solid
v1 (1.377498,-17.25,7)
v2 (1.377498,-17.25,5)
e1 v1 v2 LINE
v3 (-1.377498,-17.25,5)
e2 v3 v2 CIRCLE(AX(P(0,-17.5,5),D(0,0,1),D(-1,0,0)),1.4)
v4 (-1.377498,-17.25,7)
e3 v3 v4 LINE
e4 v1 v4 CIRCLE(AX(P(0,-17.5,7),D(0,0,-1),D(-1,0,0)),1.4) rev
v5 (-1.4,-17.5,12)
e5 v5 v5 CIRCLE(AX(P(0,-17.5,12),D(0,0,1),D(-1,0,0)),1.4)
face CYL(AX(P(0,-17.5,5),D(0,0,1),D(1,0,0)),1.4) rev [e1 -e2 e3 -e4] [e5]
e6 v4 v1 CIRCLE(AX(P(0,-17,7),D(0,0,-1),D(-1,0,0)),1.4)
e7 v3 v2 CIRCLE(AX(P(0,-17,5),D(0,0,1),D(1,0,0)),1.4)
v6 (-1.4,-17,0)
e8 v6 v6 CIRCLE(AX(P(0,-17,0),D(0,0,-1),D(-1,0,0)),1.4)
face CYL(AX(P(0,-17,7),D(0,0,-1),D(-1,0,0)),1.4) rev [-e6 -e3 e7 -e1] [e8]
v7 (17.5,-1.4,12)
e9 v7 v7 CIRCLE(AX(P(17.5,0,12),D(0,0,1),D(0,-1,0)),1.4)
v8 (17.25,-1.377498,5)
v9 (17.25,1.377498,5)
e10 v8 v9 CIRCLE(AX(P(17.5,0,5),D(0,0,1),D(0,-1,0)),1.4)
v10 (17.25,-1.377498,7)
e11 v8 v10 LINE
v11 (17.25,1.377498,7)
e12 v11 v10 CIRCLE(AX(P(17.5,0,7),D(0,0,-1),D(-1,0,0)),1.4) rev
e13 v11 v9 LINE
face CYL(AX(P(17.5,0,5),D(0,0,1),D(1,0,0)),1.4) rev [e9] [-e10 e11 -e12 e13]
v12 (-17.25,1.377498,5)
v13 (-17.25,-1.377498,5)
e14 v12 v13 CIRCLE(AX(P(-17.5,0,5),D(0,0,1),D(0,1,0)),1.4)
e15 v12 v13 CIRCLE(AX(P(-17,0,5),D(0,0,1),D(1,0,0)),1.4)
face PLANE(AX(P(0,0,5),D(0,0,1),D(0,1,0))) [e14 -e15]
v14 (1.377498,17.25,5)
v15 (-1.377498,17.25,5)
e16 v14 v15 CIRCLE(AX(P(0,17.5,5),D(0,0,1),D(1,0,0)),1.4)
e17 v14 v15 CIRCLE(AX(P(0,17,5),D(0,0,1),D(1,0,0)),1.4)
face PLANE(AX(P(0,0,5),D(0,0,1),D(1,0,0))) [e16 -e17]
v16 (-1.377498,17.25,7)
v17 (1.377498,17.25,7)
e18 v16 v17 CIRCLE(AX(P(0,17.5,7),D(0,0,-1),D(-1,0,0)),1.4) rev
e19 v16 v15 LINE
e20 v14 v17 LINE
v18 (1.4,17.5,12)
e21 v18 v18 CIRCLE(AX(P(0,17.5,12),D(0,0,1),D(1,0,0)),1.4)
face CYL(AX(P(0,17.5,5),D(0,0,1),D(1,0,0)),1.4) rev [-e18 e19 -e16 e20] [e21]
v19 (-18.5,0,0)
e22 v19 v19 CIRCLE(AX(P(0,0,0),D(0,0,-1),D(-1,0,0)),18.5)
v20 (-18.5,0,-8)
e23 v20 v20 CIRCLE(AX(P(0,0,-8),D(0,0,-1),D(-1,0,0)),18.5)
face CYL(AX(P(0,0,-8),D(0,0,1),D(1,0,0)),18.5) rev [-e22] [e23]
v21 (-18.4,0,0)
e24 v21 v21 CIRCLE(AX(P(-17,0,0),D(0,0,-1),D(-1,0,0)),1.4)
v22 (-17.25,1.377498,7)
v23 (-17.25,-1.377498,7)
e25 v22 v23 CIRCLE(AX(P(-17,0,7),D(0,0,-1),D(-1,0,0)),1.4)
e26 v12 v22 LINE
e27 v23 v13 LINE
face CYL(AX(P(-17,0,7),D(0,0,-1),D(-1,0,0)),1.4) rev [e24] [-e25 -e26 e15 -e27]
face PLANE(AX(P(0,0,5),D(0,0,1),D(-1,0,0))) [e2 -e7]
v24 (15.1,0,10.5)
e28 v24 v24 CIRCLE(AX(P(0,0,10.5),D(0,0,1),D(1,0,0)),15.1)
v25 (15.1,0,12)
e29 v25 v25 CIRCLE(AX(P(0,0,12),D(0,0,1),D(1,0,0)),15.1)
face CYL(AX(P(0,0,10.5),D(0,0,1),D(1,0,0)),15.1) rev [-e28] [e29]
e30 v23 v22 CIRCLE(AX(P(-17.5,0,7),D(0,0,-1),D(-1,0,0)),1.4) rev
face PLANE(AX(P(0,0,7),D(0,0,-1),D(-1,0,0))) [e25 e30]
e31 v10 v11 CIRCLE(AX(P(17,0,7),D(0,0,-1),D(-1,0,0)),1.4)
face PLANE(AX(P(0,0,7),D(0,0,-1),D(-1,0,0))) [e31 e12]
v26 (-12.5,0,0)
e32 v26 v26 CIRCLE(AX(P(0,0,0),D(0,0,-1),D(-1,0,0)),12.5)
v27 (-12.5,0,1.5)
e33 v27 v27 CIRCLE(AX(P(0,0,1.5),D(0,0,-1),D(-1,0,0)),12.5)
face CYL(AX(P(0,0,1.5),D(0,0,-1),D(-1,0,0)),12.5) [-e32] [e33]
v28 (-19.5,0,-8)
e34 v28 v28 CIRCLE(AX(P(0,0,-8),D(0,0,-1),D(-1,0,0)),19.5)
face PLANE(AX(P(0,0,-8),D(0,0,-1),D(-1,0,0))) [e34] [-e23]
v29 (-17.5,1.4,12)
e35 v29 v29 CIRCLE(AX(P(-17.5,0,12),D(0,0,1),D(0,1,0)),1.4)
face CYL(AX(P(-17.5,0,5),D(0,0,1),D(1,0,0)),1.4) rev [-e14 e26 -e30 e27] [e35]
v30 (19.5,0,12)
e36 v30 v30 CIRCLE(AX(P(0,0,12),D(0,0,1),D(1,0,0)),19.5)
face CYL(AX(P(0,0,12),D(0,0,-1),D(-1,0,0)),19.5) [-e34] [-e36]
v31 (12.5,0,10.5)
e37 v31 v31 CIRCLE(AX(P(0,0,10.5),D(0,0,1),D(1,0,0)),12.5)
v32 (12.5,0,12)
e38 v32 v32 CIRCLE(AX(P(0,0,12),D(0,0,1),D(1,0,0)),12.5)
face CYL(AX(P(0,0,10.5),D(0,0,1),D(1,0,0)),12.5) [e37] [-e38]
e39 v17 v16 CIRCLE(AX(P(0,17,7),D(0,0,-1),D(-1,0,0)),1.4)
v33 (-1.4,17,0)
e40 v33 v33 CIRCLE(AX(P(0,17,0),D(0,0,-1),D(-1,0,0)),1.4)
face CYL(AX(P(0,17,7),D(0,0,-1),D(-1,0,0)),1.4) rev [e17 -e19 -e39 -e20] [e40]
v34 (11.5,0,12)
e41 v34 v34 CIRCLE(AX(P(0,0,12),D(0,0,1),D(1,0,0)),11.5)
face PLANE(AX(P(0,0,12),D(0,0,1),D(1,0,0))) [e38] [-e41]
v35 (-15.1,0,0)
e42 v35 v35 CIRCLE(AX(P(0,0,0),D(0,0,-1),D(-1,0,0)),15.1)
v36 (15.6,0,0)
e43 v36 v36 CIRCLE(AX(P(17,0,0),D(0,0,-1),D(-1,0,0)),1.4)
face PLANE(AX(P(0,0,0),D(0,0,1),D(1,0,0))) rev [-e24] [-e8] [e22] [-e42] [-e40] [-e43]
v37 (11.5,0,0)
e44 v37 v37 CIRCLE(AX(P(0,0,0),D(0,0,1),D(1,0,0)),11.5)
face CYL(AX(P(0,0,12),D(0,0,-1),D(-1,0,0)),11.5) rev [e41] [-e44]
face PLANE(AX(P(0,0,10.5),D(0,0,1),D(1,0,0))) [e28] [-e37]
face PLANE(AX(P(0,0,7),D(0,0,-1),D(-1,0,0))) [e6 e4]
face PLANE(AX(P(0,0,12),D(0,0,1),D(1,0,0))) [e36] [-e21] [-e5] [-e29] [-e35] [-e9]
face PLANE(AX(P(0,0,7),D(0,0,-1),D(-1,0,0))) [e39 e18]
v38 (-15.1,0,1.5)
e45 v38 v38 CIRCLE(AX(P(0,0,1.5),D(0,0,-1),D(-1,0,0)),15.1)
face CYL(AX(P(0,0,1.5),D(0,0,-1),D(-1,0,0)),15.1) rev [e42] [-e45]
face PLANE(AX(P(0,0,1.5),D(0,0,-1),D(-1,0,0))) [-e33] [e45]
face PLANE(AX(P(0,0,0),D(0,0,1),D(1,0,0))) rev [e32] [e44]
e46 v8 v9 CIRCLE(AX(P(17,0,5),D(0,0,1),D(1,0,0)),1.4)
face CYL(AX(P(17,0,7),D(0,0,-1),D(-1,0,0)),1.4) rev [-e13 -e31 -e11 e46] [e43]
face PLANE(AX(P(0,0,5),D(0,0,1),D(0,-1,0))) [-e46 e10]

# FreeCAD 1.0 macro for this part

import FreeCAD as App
import Part
import Sketcher

doc = App.newDocument("Part")
body = doc.addObject("PartDesign::Body", "Body")

sketch1 = body.newObject("Sketcher::SketchObject", "Sketch")
sketch1.AttachmentSupport = (doc.getObject("XY_Plane"), [""])
sketch1.MapMode = "FlatFace"
sketch1.addGeometry(Part.Circle(App.Vector(0, 0, 0), App.Vector(0, 0, 1), 20), False)
sketch1.addGeometry(Part.Circle(App.Vector(0, 0, 0), App.Vector(0, 0, 1), 12), False)
sketch1.addConstraint(Sketcher.Constraint("Coincident", 0, 3, -1, 1))
sketch1.addConstraint(Sketcher.Constraint("Coincident", 1, 3, -1, 1))
sketch1.addConstraint(Sketcher.Constraint("Diameter", 0, 39.0))
sketch1.addConstraint(Sketcher.Constraint("Diameter", 1, 23.0))
pad1 = body.newObject("PartDesign::Pad", "Pad")
pad1.Profile = sketch1
pad1.Length = 12

sketch2 = body.newObject("Sketcher::SketchObject", "Sketch001")
sketch2.AttachmentSupport = (doc.getObject("XY_Plane"), [""])
sketch2.MapMode = "FlatFace"
sketch2.AttachmentOffset = App.Placement(App.Vector(0, 0, 12), App.Rotation())
sketch2.addGeometry(Part.Circle(App.Vector(0, 17.5, 0), App.Vector(0, 0, 1), 1.4), False)
sketch2.addConstraint(Sketcher.Constraint("PointOnObject", 0, 3, -2))
sketch2.addConstraint(Sketcher.Constraint("Diameter", 0, 2.8))
sketch2.addConstraint(Sketcher.Constraint("DistanceY", -1, 1, 0, 3, 17.5))
pocket1 = body.newObject("PartDesign::Pocket", "Pocket")
pocket1.Profile = sketch2
pocket1.Length = 7
doc.recompute()

polarpattern = body.newObject("PartDesign::PolarPattern", "PolarPattern")
polarpattern.Originals = [pocket1]
polarpattern.Axis = (doc.getObject("Z_Axis"), [""])
polarpattern.Angle = 360
polarpattern.Occurrences = 4
body.Tip = polarpattern

sketch3 = body.newObject("Sketcher::SketchObject", "Sketch002")
sketch3.AttachmentSupport = (doc.getObject("XY_Plane"), [""])
sketch3.MapMode = "FlatFace"
sketch3.AttachmentOffset = App.Placement(App.Vector(0, 0, 12), App.Rotation())
sketch3.addGeometry(Part.Circle(App.Vector(0, 0, 0), App.Vector(0, 0, 1), 15), False)
sketch3.addGeometry(Part.Circle(App.Vector(0, 0, 0), App.Vector(0, 0, 1), 12), False)
sketch3.addConstraint(Sketcher.Constraint("Coincident", 0, 3, -1, 1))
sketch3.addConstraint(Sketcher.Constraint("Coincident", 1, 3, -1, 1))
sketch3.addConstraint(Sketcher.Constraint("Diameter", 1, 25.0))
sketch3.addConstraint(Sketcher.Constraint("Diameter", 0, 30.2))
pocket2 = body.newObject("PartDesign::Pocket", "Pocket001")
pocket2.Profile = sketch3
pocket2.Length = 1.5

sketch4 = body.newObject("Sketcher::SketchObject", "Sketch003")
sketch4.AttachmentSupport = (doc.getObject("XY_Plane"), [""])
sketch4.MapMode = "FlatFace"
sketch4.addGeometry(Part.Circle(App.Vector(0, -17, 0), App.Vector(0, 0, 1), 1.4), False)
sketch4.addGeometry(Part.Circle(App.Vector(17, 0, 0), App.Vector(0, 0, 1), 1.4), False)
sketch4.addGeometry(Part.Circle(App.Vector(0, 17, 0), App.Vector(0, 0, 1), 1.4), False)
sketch4.addGeometry(Part.Circle(App.Vector(-17, 0, 0), App.Vector(0, 0, 1), 1.4), False)
sketch4.addConstraint(Sketcher.Constraint("Equal", 0, 1))
sketch4.addConstraint(Sketcher.Constraint("Equal", 1, 2))
sketch4.addConstraint(Sketcher.Constraint("Equal", 2, 3))
sketch4.addConstraint(Sketcher.Constraint("Symmetric", 0, 3, 2, 3, -1, 1))
sketch4.addConstraint(Sketcher.Constraint("Symmetric", 1, 3, 3, 3, -1, 1))
sketch4.addConstraint(Sketcher.Constraint("PointOnObject", 0, 3, -2))
sketch4.addConstraint(Sketcher.Constraint("PointOnObject", 1, 3, -1))
sketch4.addConstraint(Sketcher.Constraint("Diameter", 0, 2.8))
sketch4.addConstraint(Sketcher.Constraint("DistanceY", 0, 3, -1, 1, 17.0))
sketch4.addConstraint(Sketcher.Constraint("DistanceX", -1, 1, 1, 3, 17.0))
pocket3 = body.newObject("PartDesign::Pocket", "Pocket002")
pocket3.Profile = sketch4
pocket3.Length = 7
pocket3.Reversed = True

sketch5 = body.newObject("Sketcher::SketchObject", "Sketch004")
sketch5.AttachmentSupport = (doc.getObject("XY_Plane"), [""])
sketch5.MapMode = "FlatFace"
sketch5.AttachmentOffset = App.Placement(App.Vector(0, 0, 1.5), App.Rotation())
sketch5.addGeometry(Part.Circle(App.Vector(0, 0, 0), App.Vector(0, 0, 1), 15), False)
sketch5.addGeometry(Part.Circle(App.Vector(0, 0, 0), App.Vector(0, 0, 1), 12), False)
sketch5.addConstraint(Sketcher.Constraint("Coincident", 0, 3, -1, 1))
sketch5.addConstraint(Sketcher.Constraint("Coincident", 1, 3, -1, 1))
sketch5.addConstraint(Sketcher.Constraint("Diameter", 1, 25.0))
sketch5.addConstraint(Sketcher.Constraint("Diameter", 0, 30.2))
pocket4 = body.newObject("PartDesign::Pocket", "Pocket003")
pocket4.Profile = sketch5
pocket4.Length = 1.5

sketch6 = body.newObject("Sketcher::SketchObject", "Sketch005")
sketch6.AttachmentSupport = (doc.getObject("XY_Plane"), [""])
sketch6.MapMode = "FlatFace"
sketch6.AttachmentOffset = App.Placement(App.Vector(0, 0, -8), App.Rotation())
sketch6.addGeometry(Part.Circle(App.Vector(0, 0, 0), App.Vector(0, 0, 1), 20), False)
sketch6.addGeometry(Part.Circle(App.Vector(0, 0, 0), App.Vector(0, 0, 1), 18), False)
sketch6.addConstraint(Sketcher.Constraint("Coincident", 0, 3, -1, 1))
sketch6.addConstraint(Sketcher.Constraint("Coincident", 1, 3, -1, 1))
sketch6.addConstraint(Sketcher.Constraint("Diameter", 0, 39.0))
sketch6.addConstraint(Sketcher.Constraint("Diameter", 1, 37.0))
pad2 = body.newObject("PartDesign::Pad", "Pad001")
pad2.Profile = sketch6
pad2.Length = 8

doc.recompute()
